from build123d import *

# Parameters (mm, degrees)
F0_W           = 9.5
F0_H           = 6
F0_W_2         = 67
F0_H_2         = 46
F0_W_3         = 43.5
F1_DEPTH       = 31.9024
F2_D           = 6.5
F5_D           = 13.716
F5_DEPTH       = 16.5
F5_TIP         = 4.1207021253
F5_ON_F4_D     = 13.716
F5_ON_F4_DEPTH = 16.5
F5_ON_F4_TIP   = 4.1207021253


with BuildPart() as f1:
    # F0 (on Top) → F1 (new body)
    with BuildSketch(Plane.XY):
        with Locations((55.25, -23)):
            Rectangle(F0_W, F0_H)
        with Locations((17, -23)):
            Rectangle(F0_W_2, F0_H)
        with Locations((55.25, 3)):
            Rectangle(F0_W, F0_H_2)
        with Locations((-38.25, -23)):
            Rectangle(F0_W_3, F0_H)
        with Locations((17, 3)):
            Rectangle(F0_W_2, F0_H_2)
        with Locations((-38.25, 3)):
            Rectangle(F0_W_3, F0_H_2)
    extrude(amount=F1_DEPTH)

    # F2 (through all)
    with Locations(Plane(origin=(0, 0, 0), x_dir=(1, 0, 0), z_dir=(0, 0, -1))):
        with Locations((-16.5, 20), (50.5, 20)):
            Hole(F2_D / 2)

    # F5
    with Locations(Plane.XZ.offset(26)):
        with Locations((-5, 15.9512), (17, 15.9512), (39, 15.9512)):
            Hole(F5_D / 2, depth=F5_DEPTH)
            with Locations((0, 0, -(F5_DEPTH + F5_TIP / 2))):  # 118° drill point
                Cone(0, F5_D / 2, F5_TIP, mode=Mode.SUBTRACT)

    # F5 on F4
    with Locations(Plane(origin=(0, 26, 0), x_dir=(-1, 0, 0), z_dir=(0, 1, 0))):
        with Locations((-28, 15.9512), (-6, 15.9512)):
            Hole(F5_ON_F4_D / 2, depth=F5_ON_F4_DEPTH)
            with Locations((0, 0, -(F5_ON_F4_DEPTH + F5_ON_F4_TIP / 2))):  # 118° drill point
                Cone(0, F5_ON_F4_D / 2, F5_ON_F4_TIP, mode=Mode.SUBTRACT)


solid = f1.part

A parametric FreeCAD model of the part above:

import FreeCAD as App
import Part
import Sketcher

V = App.Vector
Q = App.Units.Quantity

doc = App.newDocument("Part")
body = doc.addObject("PartDesign::Body", "Body")

# Sketch on XY plane
sketch1 = body.newObject("Sketcher::SketchObject", "Sketch")
sketch1.AttachmentSupport = (doc.getObject("XY_Plane"), [""])
sketch1.MapMode = "FlatFace"
sketch1.addGeometry([
    Part.LineSegment(V(60, -26, 0), V(60, 26, 0)),
    Part.LineSegment(V(60, 26, 0), V(-60, 26, 0)),
    Part.LineSegment(V(-60, 26, 0), V(-60, -26, 0)),
    Part.LineSegment(V(-60, -26, 0), V(60, -26, 0)),
], False)
sketch1.addConstraint([
    Sketcher.Constraint("Coincident", 0, 2, 1, 1),
    Sketcher.Constraint("Coincident", 1, 2, 2, 1),
    Sketcher.Constraint("Coincident", 2, 2, 3, 1),
    Sketcher.Constraint("Coincident", 3, 2, 0, 1),
    Sketcher.Constraint("Vertical", 0),
    Sketcher.Constraint("Horizontal", 1),
    Sketcher.Constraint("Vertical", 2),
    Sketcher.Constraint("Horizontal", 3),
    Sketcher.Constraint("Symmetric", 0, 2, 2, 2, -1, 1),
    Sketcher.Constraint("DistanceX", 1, 2, 1, 1, Q("120 mm")),
    Sketcher.Constraint("DistanceY", 0, 1, 0, 2, Q("52 mm")),
])
pad1 = body.newObject("PartDesign::Pad", "Pad")
pad1.Profile = sketch1
pad1.Length = 31.9024

# Sketch on XY plane
sketch2 = body.newObject("Sketcher::SketchObject", "Sketch001")
sketch2.AttachmentSupport = (doc.getObject("XY_Plane"), [""])
sketch2.MapMode = "FlatFace"
sketch2.addGeometry([
    Part.Circle(V(-16.5, -20, 0), V(0, 0, 1), 3.2),
    Part.Circle(V(50.5, -20, 0), V(0, 0, 1), 3.2),
], False)
sketch2.addConstraint([
    Sketcher.Constraint("Equal", 0, 1),
    Sketcher.Constraint("Horizontal", 0, 3, 1, 3),
    Sketcher.Constraint("Diameter", 0, Q("6.5 mm")),
    Sketcher.Constraint("DistanceY", 0, 3, -1, 1, Q("20 mm")),
    Sketcher.Constraint("DistanceX", 0, 3, 1, 3, Q("67 mm")),
    Sketcher.Constraint("DistanceX", 0, 3, -1, 1, Q("16.5 mm")),
])
doc.recompute()
hole = body.newObject("PartDesign::Hole", "Hole")
hole.Profile = sketch2
hole.ThreadType = "None"
hole.Diameter = 6.5
hole.DepthType = "ThroughAll"
hole.Reversed = True

# Sketch on XZ plane
sketch3 = body.newObject("Sketcher::SketchObject", "Sketch002")
sketch3.AttachmentSupport = (doc.getObject("XZ_Plane"), [""])
sketch3.MapMode = "FlatFace"
sketch3.AttachmentOffset = App.Placement(V(0, 0, 26), App.Rotation())
sketch3.addGeometry([
    Part.Circle(V(-5, 16, 0), V(0, 0, 1), 7),
    Part.Circle(V(17, 16, 0), V(0, 0, 1), 7),
    Part.Circle(V(39, 16, 0), V(0, 0, 1), 7),
], False)
sketch3.addConstraint([
    Sketcher.Constraint("Equal", 0, 1),
    Sketcher.Constraint("Equal", 1, 2),
    Sketcher.Constraint("Horizontal", 0, 3, 1, 3),
    Sketcher.Constraint("Horizontal", 1, 3, 2, 3),
    Sketcher.Constraint("Diameter", 0, Q("13.716 mm")),
    Sketcher.Constraint("DistanceX", 0, 3, -1, 1, Q("5 mm")),
    Sketcher.Constraint("DistanceX", -1, 1, 1, 3, Q("17 mm")),
    Sketcher.Constraint("DistanceX", -1, 1, 2, 3, Q("39 mm")),
    Sketcher.Constraint("DistanceY", -1, 1, 0, 3, Q("15.9512 mm")),
])
doc.recompute()
hole2 = body.newObject("PartDesign::Hole", "Hole001")
hole2.Profile = sketch3
hole2.ThreadType = "None"
hole2.Diameter = 13.716
hole2.DepthType = "Dimension"
hole2.Depth = 16.5
hole2.DrillPoint = "Angled"
hole2.DrillPointAngle = 118

# Sketch on XZ plane
sketch4 = body.newObject("Sketcher::SketchObject", "Sketch003")
sketch4.AttachmentSupport = (doc.getObject("XZ_Plane"), [""])
sketch4.MapMode = "FlatFace"
sketch4.AttachmentOffset = App.Placement(V(0, 0, -26), App.Rotation())
sketch4.addGeometry([
    Part.Circle(V(28, 16, 0), V(0, 0, 1), 7),
    Part.Circle(V(6, 16, 0), V(0, 0, 1), 7),
], False)
sketch4.addConstraint([
    Sketcher.Constraint("Equal", 0, 1),
    Sketcher.Constraint("Horizontal", 0, 3, 1, 3),
    Sketcher.Constraint("Diameter", 0, Q("13.716 mm")),
    Sketcher.Constraint("DistanceX", -1, 1, 0, 3, Q("28 mm")),
    Sketcher.Constraint("DistanceX", -1, 1, 1, 3, Q("6 mm")),
    Sketcher.Constraint("DistanceY", -1, 1, 0, 3, Q("15.9512 mm")),
])
doc.recompute()
hole3 = body.newObject("PartDesign::Hole", "Hole002")
hole3.Profile = sketch4
hole3.ThreadType = "None"
hole3.Diameter = 13.716
hole3.DepthType = "Dimension"
hole3.Depth = 16.5
hole3.DrillPoint = "Angled"
hole3.DrillPointAngle = 118
hole3.Reversed = True

doc.recompute()
